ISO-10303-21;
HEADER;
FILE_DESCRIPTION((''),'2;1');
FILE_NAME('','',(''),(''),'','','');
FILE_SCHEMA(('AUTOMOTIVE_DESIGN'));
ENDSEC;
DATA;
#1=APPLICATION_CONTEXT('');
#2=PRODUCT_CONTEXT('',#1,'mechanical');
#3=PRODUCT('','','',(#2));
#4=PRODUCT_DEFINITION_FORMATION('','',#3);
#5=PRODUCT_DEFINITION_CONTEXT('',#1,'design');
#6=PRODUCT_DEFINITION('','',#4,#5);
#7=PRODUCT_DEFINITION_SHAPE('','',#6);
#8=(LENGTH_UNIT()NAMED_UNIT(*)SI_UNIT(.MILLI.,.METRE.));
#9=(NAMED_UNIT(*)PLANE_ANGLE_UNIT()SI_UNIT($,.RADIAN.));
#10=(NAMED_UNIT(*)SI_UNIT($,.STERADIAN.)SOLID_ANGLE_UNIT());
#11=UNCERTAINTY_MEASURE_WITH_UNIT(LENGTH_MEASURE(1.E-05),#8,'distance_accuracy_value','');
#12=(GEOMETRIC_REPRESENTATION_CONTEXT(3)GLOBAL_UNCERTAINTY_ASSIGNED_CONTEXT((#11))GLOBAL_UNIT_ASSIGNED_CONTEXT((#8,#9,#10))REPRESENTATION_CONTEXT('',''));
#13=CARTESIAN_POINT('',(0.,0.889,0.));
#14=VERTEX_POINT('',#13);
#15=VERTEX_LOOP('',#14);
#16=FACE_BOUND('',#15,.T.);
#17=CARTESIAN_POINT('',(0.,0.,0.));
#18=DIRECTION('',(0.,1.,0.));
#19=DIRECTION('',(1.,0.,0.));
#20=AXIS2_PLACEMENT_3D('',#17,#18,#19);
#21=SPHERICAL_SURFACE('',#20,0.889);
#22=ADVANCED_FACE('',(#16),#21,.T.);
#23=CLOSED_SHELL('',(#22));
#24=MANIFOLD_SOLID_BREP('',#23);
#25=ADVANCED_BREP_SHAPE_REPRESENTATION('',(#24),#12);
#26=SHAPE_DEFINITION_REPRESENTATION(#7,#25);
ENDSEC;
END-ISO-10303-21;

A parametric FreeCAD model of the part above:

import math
import FreeCAD as App
import Part
import Sketcher
from FreeCAD import Vector
Q = App.Units.Quantity

doc = App.newDocument("Part")
body = doc.addObject("PartDesign::Body", "Body")

sketch1 = body.newObject("Sketcher::SketchObject", "Sketch")
sketch1.AttachmentSupport = (doc.getObject("XY_Plane"), [""])
sketch1.MapMode = "FlatFace"
sketch1.addGeometry([
    Part.LineSegment(Vector(0, -0.889, 0), Vector(0, 0.889, 0)),
    Part.ArcOfCircle(Part.Circle(Vector(0, 0, 0), Vector(0, 0, 1), 0.889), math.radians(90), math.radians(270)),
], False)
sketch1.addConstraint([
    Sketcher.Constraint("Coincident", 0, 1, 1, 2),
    Sketcher.Constraint("Coincident", 1, 1, 0, 2),
    Sketcher.Constraint("Vertical", 0),
    Sketcher.Constraint("Coincident", 1, 3, -1, 1),
    Sketcher.Constraint("PointOnObject", 0, 1, -2),
    Sketcher.Constraint("Radius", 1, Q("0.035 in")),
])
revolution = body.newObject("PartDesign::Revolution", "Revolution")
revolution.Profile = sketch1
revolution.ReferenceAxis = (sketch1, ["V_Axis"])
revolution.Angle = 360

doc.recompute()
